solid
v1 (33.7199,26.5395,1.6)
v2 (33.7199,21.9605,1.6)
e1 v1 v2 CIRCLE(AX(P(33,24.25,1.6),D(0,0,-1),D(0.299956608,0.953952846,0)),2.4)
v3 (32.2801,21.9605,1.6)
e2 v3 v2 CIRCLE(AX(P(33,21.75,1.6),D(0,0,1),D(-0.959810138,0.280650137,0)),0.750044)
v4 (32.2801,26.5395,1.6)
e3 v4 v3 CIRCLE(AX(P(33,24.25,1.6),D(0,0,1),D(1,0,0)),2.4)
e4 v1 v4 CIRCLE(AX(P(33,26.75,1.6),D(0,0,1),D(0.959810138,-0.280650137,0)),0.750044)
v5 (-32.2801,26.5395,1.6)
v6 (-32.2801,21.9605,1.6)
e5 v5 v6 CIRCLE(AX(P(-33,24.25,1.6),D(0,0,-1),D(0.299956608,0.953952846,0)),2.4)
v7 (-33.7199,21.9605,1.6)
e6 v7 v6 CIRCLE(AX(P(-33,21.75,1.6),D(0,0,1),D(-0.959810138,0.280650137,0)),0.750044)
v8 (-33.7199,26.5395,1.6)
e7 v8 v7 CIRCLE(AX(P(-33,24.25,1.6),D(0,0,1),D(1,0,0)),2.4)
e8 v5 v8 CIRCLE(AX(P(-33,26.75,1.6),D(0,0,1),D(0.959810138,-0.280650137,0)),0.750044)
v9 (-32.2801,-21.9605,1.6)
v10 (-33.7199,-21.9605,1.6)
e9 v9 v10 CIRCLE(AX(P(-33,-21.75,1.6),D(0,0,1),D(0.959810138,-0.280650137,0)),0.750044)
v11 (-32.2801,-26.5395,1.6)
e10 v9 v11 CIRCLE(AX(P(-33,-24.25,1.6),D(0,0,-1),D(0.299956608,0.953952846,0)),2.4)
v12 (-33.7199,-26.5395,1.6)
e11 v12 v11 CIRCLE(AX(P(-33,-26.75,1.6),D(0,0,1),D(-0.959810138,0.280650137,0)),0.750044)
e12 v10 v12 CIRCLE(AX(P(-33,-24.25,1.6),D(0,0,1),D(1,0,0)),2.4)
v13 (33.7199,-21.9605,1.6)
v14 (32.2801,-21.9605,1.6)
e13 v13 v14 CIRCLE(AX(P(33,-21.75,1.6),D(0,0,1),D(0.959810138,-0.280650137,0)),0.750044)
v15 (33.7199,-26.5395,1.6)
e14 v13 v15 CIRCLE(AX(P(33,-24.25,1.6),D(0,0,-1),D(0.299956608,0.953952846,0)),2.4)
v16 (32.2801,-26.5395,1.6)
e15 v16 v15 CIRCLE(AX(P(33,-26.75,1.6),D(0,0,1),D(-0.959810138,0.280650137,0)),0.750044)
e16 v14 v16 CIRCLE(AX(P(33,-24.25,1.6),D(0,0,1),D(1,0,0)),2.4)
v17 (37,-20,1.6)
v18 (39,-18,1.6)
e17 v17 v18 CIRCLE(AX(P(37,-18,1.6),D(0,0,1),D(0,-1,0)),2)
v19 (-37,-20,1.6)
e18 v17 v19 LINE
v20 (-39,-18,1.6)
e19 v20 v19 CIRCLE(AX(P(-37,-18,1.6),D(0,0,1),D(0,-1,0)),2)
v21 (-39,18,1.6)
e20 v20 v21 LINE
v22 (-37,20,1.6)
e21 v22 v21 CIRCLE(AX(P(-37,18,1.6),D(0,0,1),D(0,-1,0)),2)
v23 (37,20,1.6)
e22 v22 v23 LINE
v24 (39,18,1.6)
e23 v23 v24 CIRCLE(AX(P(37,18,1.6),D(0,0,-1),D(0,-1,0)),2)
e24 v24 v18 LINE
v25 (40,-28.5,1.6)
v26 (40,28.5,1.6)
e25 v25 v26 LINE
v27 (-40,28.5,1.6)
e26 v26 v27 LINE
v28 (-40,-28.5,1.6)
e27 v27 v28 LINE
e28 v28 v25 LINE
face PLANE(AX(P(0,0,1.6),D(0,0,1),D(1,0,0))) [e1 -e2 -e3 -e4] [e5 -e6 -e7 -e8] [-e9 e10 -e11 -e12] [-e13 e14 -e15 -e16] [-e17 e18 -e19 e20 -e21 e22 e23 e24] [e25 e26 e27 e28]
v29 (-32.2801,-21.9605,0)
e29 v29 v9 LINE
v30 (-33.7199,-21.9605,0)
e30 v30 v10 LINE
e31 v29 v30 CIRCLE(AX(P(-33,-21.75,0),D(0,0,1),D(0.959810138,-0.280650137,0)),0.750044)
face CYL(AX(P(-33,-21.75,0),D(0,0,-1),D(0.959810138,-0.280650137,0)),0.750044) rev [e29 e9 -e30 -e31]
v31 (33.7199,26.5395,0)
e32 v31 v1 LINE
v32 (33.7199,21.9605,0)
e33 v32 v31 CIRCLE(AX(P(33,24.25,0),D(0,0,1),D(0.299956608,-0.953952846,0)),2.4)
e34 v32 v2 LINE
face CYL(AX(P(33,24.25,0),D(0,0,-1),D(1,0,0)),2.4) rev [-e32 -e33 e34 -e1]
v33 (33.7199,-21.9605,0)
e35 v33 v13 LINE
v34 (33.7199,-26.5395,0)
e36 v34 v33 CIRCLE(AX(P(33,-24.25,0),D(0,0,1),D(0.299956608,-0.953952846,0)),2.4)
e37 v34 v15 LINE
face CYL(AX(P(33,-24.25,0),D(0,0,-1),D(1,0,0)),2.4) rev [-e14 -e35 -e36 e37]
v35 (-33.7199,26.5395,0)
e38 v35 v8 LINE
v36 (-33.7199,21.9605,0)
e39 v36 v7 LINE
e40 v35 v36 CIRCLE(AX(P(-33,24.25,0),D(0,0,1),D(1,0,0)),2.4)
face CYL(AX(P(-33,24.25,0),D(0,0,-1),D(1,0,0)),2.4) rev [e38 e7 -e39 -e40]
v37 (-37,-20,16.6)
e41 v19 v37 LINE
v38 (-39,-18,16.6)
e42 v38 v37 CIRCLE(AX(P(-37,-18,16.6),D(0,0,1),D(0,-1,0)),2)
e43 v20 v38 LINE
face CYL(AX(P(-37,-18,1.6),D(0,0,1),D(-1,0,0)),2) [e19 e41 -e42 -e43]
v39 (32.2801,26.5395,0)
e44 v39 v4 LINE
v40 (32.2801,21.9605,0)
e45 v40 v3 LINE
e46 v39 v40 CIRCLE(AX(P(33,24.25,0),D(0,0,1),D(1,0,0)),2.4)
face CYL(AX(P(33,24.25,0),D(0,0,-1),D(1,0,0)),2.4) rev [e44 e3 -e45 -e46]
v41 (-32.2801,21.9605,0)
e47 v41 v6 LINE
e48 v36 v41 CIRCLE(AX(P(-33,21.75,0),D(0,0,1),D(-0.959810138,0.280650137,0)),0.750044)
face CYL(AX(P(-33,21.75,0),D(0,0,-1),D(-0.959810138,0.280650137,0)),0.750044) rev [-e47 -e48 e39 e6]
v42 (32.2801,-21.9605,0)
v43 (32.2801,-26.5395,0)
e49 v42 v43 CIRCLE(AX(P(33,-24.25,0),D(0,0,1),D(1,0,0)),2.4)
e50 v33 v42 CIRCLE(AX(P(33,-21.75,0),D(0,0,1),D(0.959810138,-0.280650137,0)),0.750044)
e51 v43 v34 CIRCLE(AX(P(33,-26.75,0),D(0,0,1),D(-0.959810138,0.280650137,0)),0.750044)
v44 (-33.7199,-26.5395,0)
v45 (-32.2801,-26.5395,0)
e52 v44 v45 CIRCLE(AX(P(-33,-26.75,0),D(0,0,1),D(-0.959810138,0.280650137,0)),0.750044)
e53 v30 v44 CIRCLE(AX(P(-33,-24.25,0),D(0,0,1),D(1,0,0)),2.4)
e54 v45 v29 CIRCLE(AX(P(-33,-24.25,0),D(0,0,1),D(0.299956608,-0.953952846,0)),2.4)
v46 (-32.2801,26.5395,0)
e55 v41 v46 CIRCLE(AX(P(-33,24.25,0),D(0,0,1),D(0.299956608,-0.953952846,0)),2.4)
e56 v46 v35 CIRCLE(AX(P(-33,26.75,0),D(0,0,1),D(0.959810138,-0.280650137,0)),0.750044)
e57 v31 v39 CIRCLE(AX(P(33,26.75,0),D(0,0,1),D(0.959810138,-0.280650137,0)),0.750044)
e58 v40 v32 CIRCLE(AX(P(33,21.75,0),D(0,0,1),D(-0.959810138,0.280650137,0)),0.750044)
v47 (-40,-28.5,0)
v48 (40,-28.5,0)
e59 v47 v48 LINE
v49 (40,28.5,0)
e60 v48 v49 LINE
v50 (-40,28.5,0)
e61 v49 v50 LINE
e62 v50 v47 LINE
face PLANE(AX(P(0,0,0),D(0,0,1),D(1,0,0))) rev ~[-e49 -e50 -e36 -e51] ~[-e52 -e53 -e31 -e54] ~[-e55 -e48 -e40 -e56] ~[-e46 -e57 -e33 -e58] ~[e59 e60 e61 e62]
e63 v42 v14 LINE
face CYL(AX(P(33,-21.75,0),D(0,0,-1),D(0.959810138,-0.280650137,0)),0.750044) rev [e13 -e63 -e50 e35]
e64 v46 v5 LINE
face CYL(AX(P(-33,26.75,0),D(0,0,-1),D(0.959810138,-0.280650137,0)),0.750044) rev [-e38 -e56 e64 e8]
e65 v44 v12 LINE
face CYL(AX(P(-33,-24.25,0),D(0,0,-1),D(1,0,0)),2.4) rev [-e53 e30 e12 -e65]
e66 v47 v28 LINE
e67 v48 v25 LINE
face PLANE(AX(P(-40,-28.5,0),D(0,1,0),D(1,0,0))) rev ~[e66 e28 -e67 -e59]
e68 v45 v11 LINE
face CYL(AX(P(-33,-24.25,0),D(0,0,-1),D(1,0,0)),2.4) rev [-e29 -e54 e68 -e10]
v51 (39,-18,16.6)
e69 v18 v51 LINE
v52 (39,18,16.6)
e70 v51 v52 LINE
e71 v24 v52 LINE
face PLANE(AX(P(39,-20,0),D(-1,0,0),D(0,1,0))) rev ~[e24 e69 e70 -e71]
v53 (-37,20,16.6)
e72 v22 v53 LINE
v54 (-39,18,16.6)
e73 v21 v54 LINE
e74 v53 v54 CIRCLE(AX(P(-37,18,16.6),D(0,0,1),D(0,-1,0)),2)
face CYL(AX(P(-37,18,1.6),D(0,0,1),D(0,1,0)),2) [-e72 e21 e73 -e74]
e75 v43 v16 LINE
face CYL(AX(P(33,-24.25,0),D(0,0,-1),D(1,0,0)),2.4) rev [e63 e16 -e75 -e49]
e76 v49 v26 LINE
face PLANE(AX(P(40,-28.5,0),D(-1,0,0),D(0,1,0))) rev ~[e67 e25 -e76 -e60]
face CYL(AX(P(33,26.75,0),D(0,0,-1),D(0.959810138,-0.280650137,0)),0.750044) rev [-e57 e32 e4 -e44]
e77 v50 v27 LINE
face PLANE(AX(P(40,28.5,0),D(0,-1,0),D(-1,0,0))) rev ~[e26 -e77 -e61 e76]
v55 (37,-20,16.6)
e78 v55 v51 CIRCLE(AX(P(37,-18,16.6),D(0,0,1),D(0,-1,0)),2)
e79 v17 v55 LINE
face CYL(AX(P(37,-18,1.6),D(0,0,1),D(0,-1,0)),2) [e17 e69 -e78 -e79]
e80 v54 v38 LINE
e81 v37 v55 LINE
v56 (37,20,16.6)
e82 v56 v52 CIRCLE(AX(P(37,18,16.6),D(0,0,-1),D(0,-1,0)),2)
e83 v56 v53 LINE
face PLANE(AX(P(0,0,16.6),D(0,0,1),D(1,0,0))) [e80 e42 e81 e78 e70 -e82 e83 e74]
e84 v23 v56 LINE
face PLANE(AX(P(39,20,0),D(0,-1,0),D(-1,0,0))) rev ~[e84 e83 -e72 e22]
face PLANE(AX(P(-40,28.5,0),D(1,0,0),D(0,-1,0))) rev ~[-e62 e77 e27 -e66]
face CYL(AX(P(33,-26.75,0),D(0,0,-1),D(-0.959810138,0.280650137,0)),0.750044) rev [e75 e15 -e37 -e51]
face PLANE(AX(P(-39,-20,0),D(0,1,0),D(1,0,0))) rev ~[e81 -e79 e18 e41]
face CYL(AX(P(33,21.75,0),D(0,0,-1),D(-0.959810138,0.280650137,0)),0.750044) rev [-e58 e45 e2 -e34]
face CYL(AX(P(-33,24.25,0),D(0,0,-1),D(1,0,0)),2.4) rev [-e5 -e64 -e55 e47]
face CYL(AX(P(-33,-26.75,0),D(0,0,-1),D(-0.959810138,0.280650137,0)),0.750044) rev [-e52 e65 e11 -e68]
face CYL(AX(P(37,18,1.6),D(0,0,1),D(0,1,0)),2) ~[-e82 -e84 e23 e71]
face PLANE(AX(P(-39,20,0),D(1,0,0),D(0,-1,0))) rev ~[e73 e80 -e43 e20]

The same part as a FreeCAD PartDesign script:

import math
import FreeCAD as App
import Part
import Sketcher
from FreeCAD import Vector


def edges_at(feature, points):
    """Names of the edges that pass closest to the given points."""
    edges = feature.Shape.Edges
    near = lambda p: min(range(len(edges)), key=lambda i: edges[i].distToShape(Part.Vertex(*p))[0])
    return sorted({f"Edge{near(p) + 1}" for p in points})


def add_polygon(sketch, points):
    """Adds a closed chain of lines whose ends are joined by coincident constraints."""
    first, n = sketch.GeometryCount, len(points)
    for a, b in zip(points, points[1:] + points[:1]):
        sketch.addGeometry(Part.LineSegment(App.Vector(*a, 0), App.Vector(*b, 0)), False)
    for i in range(n):
        sketch.addConstraint(Sketcher.Constraint("Coincident", first + i, 2, first + (i + 1) % n, 1))

doc = App.newDocument("Part")
body = doc.addObject("PartDesign::Body", "Body")

# Sketch on XY plane
sketch1 = doc.addObject("Sketcher::SketchObject", "Sketch")
body.addObject(sketch1)
sketch1.AttachmentSupport = (doc.XY_Plane, [""])
sketch1.MapMode = "FlatFace"
add_polygon(sketch1, [(40, -28.5), (40, 28.5), (-40, 28.5), (-40, -28.5)])  # lines 0-3
sketch1.addGeometry(Part.ArcOfCircle(Part.Circle(Vector(-33, -24.2, 0), Vector(0, 0, 1), 2.4), math.radians(-73), math.radians(73)), False)  # 4
sketch1.addGeometry(Part.ArcOfCircle(Part.Circle(Vector(-33, -26.8, 0), Vector(0, 0, 1), 0.8), math.radians(164), math.radians(376)), False)  # 5
sketch1.addGeometry(Part.ArcOfCircle(Part.Circle(Vector(-33, -24.2, 0), Vector(0, 0, 1), 2.4), math.radians(107), math.radians(253)), False)  # 6
sketch1.addGeometry(Part.ArcOfCircle(Part.Circle(Vector(-33, -21.8, 0), Vector(0, 0, 1), 0.8), math.radians(-16), math.radians(196)), False)  # 7
sketch1.addGeometry(Part.ArcOfCircle(Part.Circle(Vector(33, -24.2, 0), Vector(0, 0, 1), 2.4), math.radians(-73), math.radians(73)), False)  # 8
sketch1.addGeometry(Part.ArcOfCircle(Part.Circle(Vector(33, -26.8, 0), Vector(0, 0, 1), 0.8), math.radians(164), math.radians(376)), False)  # 9
sketch1.addGeometry(Part.ArcOfCircle(Part.Circle(Vector(33, -24.2, 0), Vector(0, 0, 1), 2.4), math.radians(107), math.radians(253)), False)  # 10
sketch1.addGeometry(Part.ArcOfCircle(Part.Circle(Vector(33, -21.8, 0), Vector(0, 0, 1), 0.8), math.radians(-16), math.radians(196)), False)  # 11
sketch1.addGeometry(Part.ArcOfCircle(Part.Circle(Vector(-33, 24.2, 0), Vector(0, 0, 1), 2.4), math.radians(-73), math.radians(73)), False)  # 12
sketch1.addGeometry(Part.ArcOfCircle(Part.Circle(Vector(-33, 21.8, 0), Vector(0, 0, 1), 0.8), math.radians(164), math.radians(376)), False)  # 13
sketch1.addGeometry(Part.ArcOfCircle(Part.Circle(Vector(-33, 24.2, 0), Vector(0, 0, 1), 2.4), math.radians(107), math.radians(253)), False)  # 14
sketch1.addGeometry(Part.ArcOfCircle(Part.Circle(Vector(-33, 26.8, 0), Vector(0, 0, 1), 0.8), math.radians(-16), math.radians(196)), False)  # 15
sketch1.addGeometry(Part.ArcOfCircle(Part.Circle(Vector(33, 24.2, 0), Vector(0, 0, 1), 2.4), math.radians(-73), math.radians(73)), False)  # 16
sketch1.addGeometry(Part.ArcOfCircle(Part.Circle(Vector(33, 21.8, 0), Vector(0, 0, 1), 0.8), math.radians(164), math.radians(376)), False)  # 17
sketch1.addGeometry(Part.ArcOfCircle(Part.Circle(Vector(33, 24.2, 0), Vector(0, 0, 1), 2.4), math.radians(107), math.radians(253)), False)  # 18
sketch1.addGeometry(Part.ArcOfCircle(Part.Circle(Vector(33, 26.8, 0), Vector(0, 0, 1), 0.8), math.radians(-16), math.radians(196)), False)  # 19
sketch1.addConstraint([
    Sketcher.Constraint("Coincident", 4, 1, 5, 2),
    Sketcher.Constraint("Coincident", 5, 1, 6, 2),
    Sketcher.Constraint("Coincident", 6, 1, 7, 2),
    Sketcher.Constraint("Coincident", 7, 1, 4, 2),
    Sketcher.Constraint("Coincident", 8, 1, 9, 2),
    Sketcher.Constraint("Coincident", 9, 1, 10, 2),
    Sketcher.Constraint("Coincident", 10, 1, 11, 2),
    Sketcher.Constraint("Coincident", 11, 1, 8, 2),
    Sketcher.Constraint("Coincident", 12, 1, 13, 2),
    Sketcher.Constraint("Coincident", 13, 1, 14, 2),
    Sketcher.Constraint("Coincident", 14, 1, 15, 2),
    Sketcher.Constraint("Coincident", 15, 1, 12, 2),
    Sketcher.Constraint("Coincident", 16, 1, 17, 2),
    Sketcher.Constraint("Coincident", 17, 1, 18, 2),
    Sketcher.Constraint("Coincident", 18, 1, 19, 2),
    Sketcher.Constraint("Coincident", 19, 1, 16, 2),
    Sketcher.Constraint("Vertical", 0),
    Sketcher.Constraint("Horizontal", 1),
    Sketcher.Constraint("Vertical", 2),
    Sketcher.Constraint("Horizontal", 3),
    Sketcher.Constraint("Coincident", 6, 3, 4, 3),
    Sketcher.Constraint("Coincident", 10, 3, 8, 3),
    Sketcher.Constraint("Coincident", 14, 3, 12, 3),
    Sketcher.Constraint("Coincident", 18, 3, 16, 3),
    Sketcher.Constraint("Equal", 4, 6),
    Sketcher.Constraint("Equal", 5, 7),
    Sketcher.Constraint("Equal", 6, 8),
    Sketcher.Constraint("Equal", 7, 9),
    Sketcher.Constraint("Equal", 8, 10),
    Sketcher.Constraint("Equal", 9, 11),
    Sketcher.Constraint("Equal", 10, 12),
    Sketcher.Constraint("Equal", 11, 13),
    Sketcher.Constraint("Equal", 12, 14),
    Sketcher.Constraint("Equal", 13, 15),
    Sketcher.Constraint("Equal", 14, 16),
    Sketcher.Constraint("Equal", 15, 17),
    Sketcher.Constraint("Equal", 16, 18),
    Sketcher.Constraint("Equal", 17, 19),
    Sketcher.Constraint("Symmetric", 8, 3, 12, 3, -1, 1),
    Sketcher.Constraint("Symmetric", 11, 3, 13, 3, -1, 1),
    Sketcher.Constraint("Symmetric", 9, 3, 15, 3, -1, 1),
    Sketcher.Constraint("Symmetric", 4, 3, 16, 3, -1, 1),
    Sketcher.Constraint("Symmetric", 7, 3, 17, 3, -1, 1),
    Sketcher.Constraint("Symmetric", 5, 3, 19, 3, -1, 1),
    Sketcher.Constraint("Symmetric", 0, 2, 2, 2, -1, 1),
    Sketcher.Constraint("Symmetric", 4, 3, 8, 3, -2),
    Sketcher.Constraint("Symmetric", 5, 3, 9, 3, -2),
    Sketcher.Constraint("Symmetric", 7, 3, 11, 3, -2),
    Sketcher.Constraint("Horizontal", 4, 1, 5, 1),
    Sketcher.Constraint("Horizontal", 6, 1, 7, 1),
    Sketcher.Constraint("Vertical", 5, 1, 6, 1),
    Sketcher.Constraint("Radius", 4, 2.4),
    Sketcher.Constraint("DistanceX", 1, 2, 1, 1, 80.0),
    Sketcher.Constraint("DistanceY", 0, 1, 0, 2, 57.0),
    Sketcher.Constraint("Radius", 5, 0.75),
    Sketcher.Constraint("DistanceX", 4, 3, 8, 3, 66.0),
    Sketcher.Constraint("DistanceY", 4, 3, 12, 3, 48.5),
    Sketcher.Constraint("DistanceY", 5, 3, 7, 3, 5.0),
])
pad1 = doc.addObject("PartDesign::Pad", "Pad")
body.addObject(pad1)
pad1.Profile = sketch1
pad1.Length = 1.6

# Sketch on XY plane
sketch2 = doc.addObject("Sketcher::SketchObject", "Sketch001")
body.addObject(sketch2)
sketch2.AttachmentSupport = (doc.XY_Plane, [""])
sketch2.MapMode = "FlatFace"
add_polygon(sketch2, [(39, -20), (39, 20), (-39, 20), (-39, -20)])  # lines 0-3
sketch2.addConstraint([
    Sketcher.Constraint("Vertical", 0),
    Sketcher.Constraint("Horizontal", 1),
    Sketcher.Constraint("Vertical", 2),
    Sketcher.Constraint("Horizontal", 3),
    Sketcher.Constraint("Symmetric", 0, 2, 2, 2, -1, 1),
    Sketcher.Constraint("DistanceX", 1, 2, 1, 1, 78.0),
    Sketcher.Constraint("DistanceY", 0, 1, 0, 2, 40.0),
])
pad2 = doc.addObject("PartDesign::Pad", "Pad001")
body.addObject(pad2)
pad2.Profile = sketch2
pad2.Length = 16.6
doc.recompute()

fillet = doc.addObject("PartDesign::Fillet", "Fillet")
body.addObject(fillet)
fillet.Base = (pad2, edges_at(pad2, [
    (39, -20, 9.1),
    (39, 20, 9.1),
    (-39, -20, 9.1),
    (-39, 20, 9.1),
]))
fillet.Radius = 2

doc.recompute()
